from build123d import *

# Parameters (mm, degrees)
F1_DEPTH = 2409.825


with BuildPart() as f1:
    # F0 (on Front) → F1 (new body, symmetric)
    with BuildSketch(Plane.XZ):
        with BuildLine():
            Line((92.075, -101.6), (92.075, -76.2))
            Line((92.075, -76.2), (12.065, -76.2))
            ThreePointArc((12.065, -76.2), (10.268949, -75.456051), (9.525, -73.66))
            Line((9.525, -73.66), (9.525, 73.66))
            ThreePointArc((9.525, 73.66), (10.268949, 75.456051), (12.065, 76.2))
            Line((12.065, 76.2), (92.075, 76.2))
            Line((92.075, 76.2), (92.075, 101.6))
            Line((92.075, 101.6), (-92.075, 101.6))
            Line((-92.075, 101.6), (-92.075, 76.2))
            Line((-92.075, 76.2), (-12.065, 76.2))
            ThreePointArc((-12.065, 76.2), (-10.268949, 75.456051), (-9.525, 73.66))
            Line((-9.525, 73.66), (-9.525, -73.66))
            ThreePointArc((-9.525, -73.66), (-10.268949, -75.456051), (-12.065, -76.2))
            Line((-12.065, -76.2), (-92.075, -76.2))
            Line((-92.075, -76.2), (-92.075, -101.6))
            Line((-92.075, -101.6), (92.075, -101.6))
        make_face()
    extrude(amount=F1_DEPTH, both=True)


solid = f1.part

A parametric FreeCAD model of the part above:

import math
import FreeCAD as App
import Part
import Sketcher

V = App.Vector
Q = App.Units.Quantity

doc = App.newDocument("Part")
body = doc.addObject("PartDesign::Body", "Body")

sketch1 = doc.addObject("Sketcher::SketchObject", "Sketch")
body.addObject(sketch1)
sketch1.AttachmentSupport = (doc.XZ_Plane, [""])
sketch1.MapMode = "FlatFace"
sketch1.addGeometry([
    Part.LineSegment(V(92.1, -101.6, 0), V(92.1, -76.2, 0)),
    Part.LineSegment(V(92.1, -76.2, 0), V(12.1, -76.2, 0)),
    Part.ArcOfCircle(Part.Circle(V(12.1, -73.7, 0), V(0, 0, 1), 2.5), math.radians(-180), math.radians(-90)),
    Part.LineSegment(V(9.5, -73.7, 0), V(9.5, 73.7, 0)),
    Part.ArcOfCircle(Part.Circle(V(12.1, 73.7, 0), V(0, 0, 1), 2.5), math.radians(90), math.radians(180)),
    Part.LineSegment(V(12.1, 76.2, 0), V(92.1, 76.2, 0)),
    Part.LineSegment(V(92.1, 76.2, 0), V(92.1, 101.6, 0)),
    Part.LineSegment(V(92.1, 101.6, 0), V(-92.1, 101.6, 0)),
    Part.LineSegment(V(-92.1, 101.6, 0), V(-92.1, 76.2, 0)),
    Part.LineSegment(V(-92.1, 76.2, 0), V(-12.1, 76.2, 0)),
    Part.ArcOfCircle(Part.Circle(V(-12.1, 73.7, 0), V(0, 0, 1), 2.5), math.radians(0), math.radians(90)),
    Part.LineSegment(V(-9.5, 73.7, 0), V(-9.5, -73.7, 0)),
    Part.ArcOfCircle(Part.Circle(V(-12.1, -73.7, 0), V(0, 0, 1), 2.5), math.radians(-90), math.radians(0)),
    Part.LineSegment(V(-12.1, -76.2, 0), V(-92.1, -76.2, 0)),
    Part.LineSegment(V(-92.1, -76.2, 0), V(-92.1, -101.6, 0)),
    Part.LineSegment(V(-92.1, -101.6, 0), V(92.1, -101.6, 0)),
], False)
sketch1.addConstraint([
    Sketcher.Constraint("Coincident", 0, 2, 1, 1),
    Sketcher.Constraint("Tangent", 1, 2, 2, 2),
    Sketcher.Constraint("Tangent", 2, 1, 3, 1),
    Sketcher.Constraint("Tangent", 3, 2, 4, 2),
    Sketcher.Constraint("Tangent", 4, 1, 5, 1),
    Sketcher.Constraint("Coincident", 5, 2, 6, 1),
    Sketcher.Constraint("Coincident", 6, 2, 7, 1),
    Sketcher.Constraint("Coincident", 7, 2, 8, 1),
    Sketcher.Constraint("Coincident", 8, 2, 9, 1),
    Sketcher.Constraint("Tangent", 9, 2, 10, 2),
    Sketcher.Constraint("Tangent", 10, 1, 11, 1),
    Sketcher.Constraint("Tangent", 11, 2, 12, 2),
    Sketcher.Constraint("Tangent", 12, 1, 13, 1),
    Sketcher.Constraint("Coincident", 13, 2, 14, 1),
    Sketcher.Constraint("Coincident", 14, 2, 15, 1),
    Sketcher.Constraint("Coincident", 15, 2, 0, 1),
    Sketcher.Constraint("Vertical", 0),
    Sketcher.Constraint("Horizontal", 1),
    Sketcher.Constraint("Vertical", 3),
    Sketcher.Constraint("Horizontal", 5),
    Sketcher.Constraint("Vertical", 6),
    Sketcher.Constraint("Horizontal", 7),
    Sketcher.Constraint("Vertical", 8),
    Sketcher.Constraint("Horizontal", 9),
    Sketcher.Constraint("Vertical", 11),
    Sketcher.Constraint("Horizontal", 13),
    Sketcher.Constraint("Vertical", 14),
    Sketcher.Constraint("Horizontal", 15),
    Sketcher.Constraint("Equal", 2, 4),
    Sketcher.Constraint("Equal", 4, 10),
    Sketcher.Constraint("Equal", 10, 12),
    Sketcher.Constraint("Symmetric", 2, 3, 10, 3, -1, 1),
    Sketcher.Constraint("Symmetric", 5, 2, 13, 2, -1, 1),
    Sketcher.Constraint("Symmetric", 7, 2, 15, 2, -1, 1),
    Sketcher.Constraint("Symmetric", 5, 2, 8, 2, -2),
    Sketcher.Constraint("Radius", 2, Q("0.1 in")),
    Sketcher.Constraint("DistanceY", 0, 1, 0, 2, Q("1 in")),
    Sketcher.Constraint("DistanceY", 3, 1, 3, 2, Q("5.8 in")),
    Sketcher.Constraint("DistanceX", 7, 2, 3, 2, Q("4 in")),
    Sketcher.Constraint("DistanceX", 1, 2, 1, 1, Q("3.15 in")),
])
pad1 = doc.addObject("PartDesign::Pad", "Pad")
body.addObject(pad1)
pad1.Profile = sketch1
pad1.Length = Q("189.75 in")
pad1.Midplane = True

doc.recompute()
